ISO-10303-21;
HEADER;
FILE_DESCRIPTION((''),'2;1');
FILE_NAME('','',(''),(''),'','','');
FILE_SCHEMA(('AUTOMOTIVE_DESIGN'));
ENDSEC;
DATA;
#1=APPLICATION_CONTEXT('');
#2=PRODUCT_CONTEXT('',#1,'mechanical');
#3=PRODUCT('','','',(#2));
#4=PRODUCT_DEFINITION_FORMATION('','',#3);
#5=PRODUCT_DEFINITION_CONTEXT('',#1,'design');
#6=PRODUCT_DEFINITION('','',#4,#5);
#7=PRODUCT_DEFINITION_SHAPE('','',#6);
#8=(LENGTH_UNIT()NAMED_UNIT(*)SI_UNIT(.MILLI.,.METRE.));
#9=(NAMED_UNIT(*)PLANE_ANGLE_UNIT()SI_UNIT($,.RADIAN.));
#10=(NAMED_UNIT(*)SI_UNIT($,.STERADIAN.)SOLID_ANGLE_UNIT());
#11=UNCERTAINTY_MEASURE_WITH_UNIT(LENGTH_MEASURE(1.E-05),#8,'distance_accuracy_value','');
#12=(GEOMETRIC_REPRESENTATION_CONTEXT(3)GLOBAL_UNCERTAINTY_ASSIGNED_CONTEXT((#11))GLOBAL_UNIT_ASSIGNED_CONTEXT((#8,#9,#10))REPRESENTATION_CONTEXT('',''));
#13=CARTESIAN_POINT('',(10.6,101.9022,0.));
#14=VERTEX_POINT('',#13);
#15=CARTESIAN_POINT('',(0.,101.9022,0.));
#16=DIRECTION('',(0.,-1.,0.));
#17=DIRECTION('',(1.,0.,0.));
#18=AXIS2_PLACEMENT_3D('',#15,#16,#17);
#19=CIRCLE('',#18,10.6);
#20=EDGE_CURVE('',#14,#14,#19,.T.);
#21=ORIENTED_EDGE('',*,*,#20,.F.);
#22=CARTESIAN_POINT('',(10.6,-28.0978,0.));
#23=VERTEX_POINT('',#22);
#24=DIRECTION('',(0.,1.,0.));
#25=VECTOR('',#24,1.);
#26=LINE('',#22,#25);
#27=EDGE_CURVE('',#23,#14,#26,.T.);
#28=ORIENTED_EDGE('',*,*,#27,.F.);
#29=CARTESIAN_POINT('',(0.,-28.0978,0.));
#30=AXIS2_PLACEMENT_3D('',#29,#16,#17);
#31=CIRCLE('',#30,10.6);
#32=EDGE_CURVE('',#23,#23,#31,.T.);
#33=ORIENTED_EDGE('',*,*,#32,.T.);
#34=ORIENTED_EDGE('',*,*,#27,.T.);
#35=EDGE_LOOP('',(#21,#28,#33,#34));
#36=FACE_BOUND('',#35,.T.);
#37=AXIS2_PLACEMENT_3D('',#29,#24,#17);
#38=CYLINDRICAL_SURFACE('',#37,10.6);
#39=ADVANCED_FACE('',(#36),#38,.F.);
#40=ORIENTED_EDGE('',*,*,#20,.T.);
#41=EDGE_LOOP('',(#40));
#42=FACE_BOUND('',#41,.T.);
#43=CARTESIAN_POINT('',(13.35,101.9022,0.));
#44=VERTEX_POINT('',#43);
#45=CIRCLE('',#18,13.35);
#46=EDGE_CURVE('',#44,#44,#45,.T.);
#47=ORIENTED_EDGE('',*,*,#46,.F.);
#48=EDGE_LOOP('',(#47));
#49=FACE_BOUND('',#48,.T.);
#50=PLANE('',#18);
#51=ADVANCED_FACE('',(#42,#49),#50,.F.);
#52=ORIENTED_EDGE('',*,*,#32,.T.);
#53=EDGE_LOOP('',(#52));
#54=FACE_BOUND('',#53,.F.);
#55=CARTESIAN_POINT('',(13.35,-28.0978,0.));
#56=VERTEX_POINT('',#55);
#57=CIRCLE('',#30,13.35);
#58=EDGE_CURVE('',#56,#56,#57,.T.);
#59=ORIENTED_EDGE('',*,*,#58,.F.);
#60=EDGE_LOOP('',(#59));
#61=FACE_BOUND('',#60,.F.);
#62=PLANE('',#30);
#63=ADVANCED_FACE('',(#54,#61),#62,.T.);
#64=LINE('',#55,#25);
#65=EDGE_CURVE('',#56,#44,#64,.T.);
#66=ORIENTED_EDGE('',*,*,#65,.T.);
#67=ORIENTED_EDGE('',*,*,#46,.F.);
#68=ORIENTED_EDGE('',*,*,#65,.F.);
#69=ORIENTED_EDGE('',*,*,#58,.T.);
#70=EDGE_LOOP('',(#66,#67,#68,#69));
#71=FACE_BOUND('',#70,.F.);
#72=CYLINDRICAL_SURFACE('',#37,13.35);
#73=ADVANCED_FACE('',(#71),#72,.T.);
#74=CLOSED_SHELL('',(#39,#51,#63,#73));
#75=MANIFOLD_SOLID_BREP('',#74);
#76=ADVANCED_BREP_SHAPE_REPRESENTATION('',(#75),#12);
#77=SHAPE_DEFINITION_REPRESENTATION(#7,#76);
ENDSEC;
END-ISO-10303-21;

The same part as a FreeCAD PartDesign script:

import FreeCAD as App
import Part
import Sketcher
from FreeCAD import Vector


def add_polygon(sketch, points):
    """Adds a closed chain of lines whose ends are joined by coincident constraints."""
    first, n = sketch.GeometryCount, len(points)
    for a, b in zip(points, points[1:] + points[:1]):
        sketch.addGeometry(Part.LineSegment(App.Vector(*a, 0), App.Vector(*b, 0)), False)
    for i in range(n):
        sketch.addConstraint(Sketcher.Constraint("Coincident", first + i, 2, first + (i + 1) % n, 1))

doc = App.newDocument("Part")
body = doc.addObject("PartDesign::Body", "Body")

# Sketch on XY plane
sketch1 = doc.addObject("Sketcher::SketchObject", "Sketch")
body.addObject(sketch1)
sketch1.AttachmentSupport = (doc.XY_Plane, [""])
sketch1.MapMode = "FlatFace"
add_polygon(sketch1, [(10.6, -28.1), (13.3, -28.1), (13.3, 101.9), (10.6, 101.9)])  # lines 0-3
sketch1.addConstraint(Sketcher.Constraint("Horizontal", 0))
sketch1.addConstraint(Sketcher.Constraint("Vertical", 1))
sketch1.addConstraint(Sketcher.Constraint("Horizontal", 2))
sketch1.addConstraint(Sketcher.Constraint("Vertical", 3))
sketch1.addConstraint(Sketcher.Constraint("DistanceY", 1, 1, 1, 2, 130.0))
sketch1.addConstraint(Sketcher.Constraint("DistanceX", 0, 1, 0, 2, 2.75))
sketch1.addConstraint(Sketcher.Constraint("DistanceX", -1, 1, 2, 2, 10.6))
sketch1.addConstraint(Sketcher.Constraint("DistanceY", 0, 2, -1, 1, 28.0978))
revolution = doc.addObject("PartDesign::Revolution", "Revolution")
body.addObject(revolution)
revolution.Profile = sketch1
revolution.ReferenceAxis = (sketch1, ["V_Axis"])
revolution.Angle = 360

doc.recompute()
